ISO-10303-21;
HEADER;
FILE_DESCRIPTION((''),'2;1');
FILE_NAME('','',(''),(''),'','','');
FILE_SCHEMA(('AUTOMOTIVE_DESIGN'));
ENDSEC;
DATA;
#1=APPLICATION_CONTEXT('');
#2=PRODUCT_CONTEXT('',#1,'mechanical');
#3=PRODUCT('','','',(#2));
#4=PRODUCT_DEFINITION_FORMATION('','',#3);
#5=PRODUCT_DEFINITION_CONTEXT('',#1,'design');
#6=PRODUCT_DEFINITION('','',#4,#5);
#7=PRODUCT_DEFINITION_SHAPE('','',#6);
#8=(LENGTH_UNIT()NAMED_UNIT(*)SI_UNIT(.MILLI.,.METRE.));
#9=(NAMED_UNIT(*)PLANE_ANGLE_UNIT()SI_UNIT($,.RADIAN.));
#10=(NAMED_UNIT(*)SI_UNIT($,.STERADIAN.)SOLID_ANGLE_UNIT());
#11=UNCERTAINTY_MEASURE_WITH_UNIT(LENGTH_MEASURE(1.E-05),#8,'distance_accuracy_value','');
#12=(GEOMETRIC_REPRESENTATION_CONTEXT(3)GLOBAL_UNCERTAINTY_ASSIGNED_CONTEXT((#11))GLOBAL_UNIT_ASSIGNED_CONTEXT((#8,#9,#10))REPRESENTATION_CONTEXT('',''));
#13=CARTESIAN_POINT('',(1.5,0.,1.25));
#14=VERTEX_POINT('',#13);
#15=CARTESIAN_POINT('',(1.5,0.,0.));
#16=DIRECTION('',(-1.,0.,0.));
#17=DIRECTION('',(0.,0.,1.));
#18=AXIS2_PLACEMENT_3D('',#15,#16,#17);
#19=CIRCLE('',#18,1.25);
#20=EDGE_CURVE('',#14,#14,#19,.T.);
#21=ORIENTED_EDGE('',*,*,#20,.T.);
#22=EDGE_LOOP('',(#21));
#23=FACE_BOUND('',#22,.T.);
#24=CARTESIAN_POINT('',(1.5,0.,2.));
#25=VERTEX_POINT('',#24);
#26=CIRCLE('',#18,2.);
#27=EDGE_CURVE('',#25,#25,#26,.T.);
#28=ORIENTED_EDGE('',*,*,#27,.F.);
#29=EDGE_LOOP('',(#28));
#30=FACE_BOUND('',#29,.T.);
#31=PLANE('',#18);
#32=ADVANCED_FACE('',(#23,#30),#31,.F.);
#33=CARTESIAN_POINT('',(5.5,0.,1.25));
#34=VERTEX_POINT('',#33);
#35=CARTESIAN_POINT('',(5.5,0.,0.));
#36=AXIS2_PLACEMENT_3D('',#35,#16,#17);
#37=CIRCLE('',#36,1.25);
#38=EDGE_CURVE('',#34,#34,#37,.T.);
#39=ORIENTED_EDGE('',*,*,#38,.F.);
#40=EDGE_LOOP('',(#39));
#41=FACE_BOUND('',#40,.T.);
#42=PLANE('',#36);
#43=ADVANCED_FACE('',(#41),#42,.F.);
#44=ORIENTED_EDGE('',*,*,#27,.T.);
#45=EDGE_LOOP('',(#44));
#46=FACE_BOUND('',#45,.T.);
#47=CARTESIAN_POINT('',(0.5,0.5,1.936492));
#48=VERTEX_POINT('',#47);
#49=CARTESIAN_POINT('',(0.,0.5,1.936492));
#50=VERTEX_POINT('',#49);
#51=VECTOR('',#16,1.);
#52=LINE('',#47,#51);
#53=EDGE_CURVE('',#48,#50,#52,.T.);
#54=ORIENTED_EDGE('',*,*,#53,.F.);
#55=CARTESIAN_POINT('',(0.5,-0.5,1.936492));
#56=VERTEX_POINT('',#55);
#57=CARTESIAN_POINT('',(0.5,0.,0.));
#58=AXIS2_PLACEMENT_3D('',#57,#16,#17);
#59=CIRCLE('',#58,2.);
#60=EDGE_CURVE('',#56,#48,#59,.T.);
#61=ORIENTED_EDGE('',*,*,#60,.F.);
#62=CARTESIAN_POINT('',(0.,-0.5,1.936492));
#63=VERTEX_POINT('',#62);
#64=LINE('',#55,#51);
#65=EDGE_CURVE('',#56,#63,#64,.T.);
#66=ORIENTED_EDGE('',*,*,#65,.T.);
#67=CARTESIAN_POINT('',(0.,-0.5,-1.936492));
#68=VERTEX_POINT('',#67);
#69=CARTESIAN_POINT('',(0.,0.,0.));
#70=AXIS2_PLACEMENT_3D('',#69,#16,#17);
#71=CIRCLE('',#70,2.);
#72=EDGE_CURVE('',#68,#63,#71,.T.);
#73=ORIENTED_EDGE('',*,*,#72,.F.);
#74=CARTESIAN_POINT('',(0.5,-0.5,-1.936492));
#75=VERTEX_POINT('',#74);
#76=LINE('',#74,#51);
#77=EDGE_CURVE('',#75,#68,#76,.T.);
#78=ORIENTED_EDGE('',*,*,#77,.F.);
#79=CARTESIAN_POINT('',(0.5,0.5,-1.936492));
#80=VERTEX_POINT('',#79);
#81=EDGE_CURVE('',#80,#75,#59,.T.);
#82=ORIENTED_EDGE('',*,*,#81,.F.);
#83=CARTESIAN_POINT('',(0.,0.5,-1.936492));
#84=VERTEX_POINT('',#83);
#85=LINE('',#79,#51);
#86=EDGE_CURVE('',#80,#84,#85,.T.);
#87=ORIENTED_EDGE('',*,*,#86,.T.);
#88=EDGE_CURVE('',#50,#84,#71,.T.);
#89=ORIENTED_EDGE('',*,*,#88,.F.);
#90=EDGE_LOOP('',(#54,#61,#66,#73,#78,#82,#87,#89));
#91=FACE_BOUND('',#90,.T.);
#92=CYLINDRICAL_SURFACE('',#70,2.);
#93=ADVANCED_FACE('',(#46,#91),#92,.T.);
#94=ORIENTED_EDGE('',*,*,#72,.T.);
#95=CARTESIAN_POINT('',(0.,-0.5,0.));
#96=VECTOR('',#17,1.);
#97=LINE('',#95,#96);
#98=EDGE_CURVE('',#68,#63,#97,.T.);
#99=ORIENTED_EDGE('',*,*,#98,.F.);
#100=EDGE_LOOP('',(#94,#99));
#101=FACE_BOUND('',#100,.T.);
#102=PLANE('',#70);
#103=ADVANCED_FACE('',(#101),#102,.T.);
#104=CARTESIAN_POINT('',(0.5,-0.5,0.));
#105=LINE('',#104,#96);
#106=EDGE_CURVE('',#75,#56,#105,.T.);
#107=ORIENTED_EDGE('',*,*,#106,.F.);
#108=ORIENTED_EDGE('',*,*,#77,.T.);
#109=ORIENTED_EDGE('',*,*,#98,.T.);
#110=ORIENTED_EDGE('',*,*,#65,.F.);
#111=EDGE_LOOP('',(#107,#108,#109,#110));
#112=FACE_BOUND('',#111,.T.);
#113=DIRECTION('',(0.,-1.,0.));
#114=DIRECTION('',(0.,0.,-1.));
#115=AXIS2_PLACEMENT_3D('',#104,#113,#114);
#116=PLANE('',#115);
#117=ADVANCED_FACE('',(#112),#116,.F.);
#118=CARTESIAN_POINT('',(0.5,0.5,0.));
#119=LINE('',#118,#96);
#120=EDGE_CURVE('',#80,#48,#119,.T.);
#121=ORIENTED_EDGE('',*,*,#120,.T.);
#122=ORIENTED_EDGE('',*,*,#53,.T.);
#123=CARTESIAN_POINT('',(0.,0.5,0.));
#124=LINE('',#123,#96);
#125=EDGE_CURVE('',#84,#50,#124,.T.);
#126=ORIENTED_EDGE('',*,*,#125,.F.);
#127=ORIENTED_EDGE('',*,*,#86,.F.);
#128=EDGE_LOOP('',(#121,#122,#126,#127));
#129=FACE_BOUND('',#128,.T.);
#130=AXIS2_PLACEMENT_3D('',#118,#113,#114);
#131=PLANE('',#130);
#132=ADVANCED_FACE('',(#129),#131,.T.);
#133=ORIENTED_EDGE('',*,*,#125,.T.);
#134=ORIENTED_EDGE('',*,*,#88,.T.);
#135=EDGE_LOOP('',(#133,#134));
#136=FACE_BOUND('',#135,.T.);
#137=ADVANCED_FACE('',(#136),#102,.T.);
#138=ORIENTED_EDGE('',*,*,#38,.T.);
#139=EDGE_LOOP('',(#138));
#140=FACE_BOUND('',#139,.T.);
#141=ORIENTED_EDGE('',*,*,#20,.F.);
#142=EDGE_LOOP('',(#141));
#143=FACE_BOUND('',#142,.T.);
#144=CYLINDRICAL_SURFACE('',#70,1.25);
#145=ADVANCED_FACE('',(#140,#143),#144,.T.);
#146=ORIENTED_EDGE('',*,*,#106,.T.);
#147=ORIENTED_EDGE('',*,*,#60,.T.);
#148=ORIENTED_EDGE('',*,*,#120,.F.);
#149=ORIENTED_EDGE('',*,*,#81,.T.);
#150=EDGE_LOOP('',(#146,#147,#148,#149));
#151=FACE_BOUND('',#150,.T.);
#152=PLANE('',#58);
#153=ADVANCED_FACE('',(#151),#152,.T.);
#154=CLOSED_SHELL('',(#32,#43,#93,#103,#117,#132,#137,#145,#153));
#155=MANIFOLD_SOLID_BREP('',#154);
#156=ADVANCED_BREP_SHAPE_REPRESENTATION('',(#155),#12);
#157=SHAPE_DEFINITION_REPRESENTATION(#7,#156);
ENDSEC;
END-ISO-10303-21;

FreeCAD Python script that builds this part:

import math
import FreeCAD as App
import Part
import Sketcher
from FreeCAD import Vector


def add_polygon(sketch, points):
    """Adds a closed chain of lines whose ends are joined by coincident constraints."""
    first, n = sketch.GeometryCount, len(points)
    for a, b in zip(points, points[1:] + points[:1]):
        sketch.addGeometry(Part.LineSegment(App.Vector(*a, 0), App.Vector(*b, 0)), False)
    for i in range(n):
        sketch.addConstraint(Sketcher.Constraint("Coincident", first + i, 2, first + (i + 1) % n, 1))

doc = App.newDocument("Part")
params = doc.addObject("Spreadsheet::Sheet", "Params")
for row, (alias, value) in enumerate([
    ("sketch1_width", "4 mm"),
    ("sketch1_height", "2 mm"),
    ("sketch1_width2", "5.5 mm"),
    ("sketch1_height2", "1.25 mm"),
    ("revolution_angle", "360 deg"),
    ("sketch2_radius", "2 mm"),
    ("pocket1_length", "0.5 mm"),
], start=1):
    params.set(f"A{row}", alias)
    params.set(f"B{row}", "=" + value)
    params.setAlias(f"B{row}", alias)

body = doc.addObject("PartDesign::Body", "Body")

# Sketch on XZ plane
sketch1 = body.newObject("Sketcher::SketchObject", "Sketch")
sketch1.AttachmentSupport = (doc.getObject("XZ_Plane"), [""])
sketch1.MapMode = "FlatFace"
add_polygon(sketch1, [(0, -2), (0, 0), (5.5, 0), (5.5, -1.2), (1.5, -1.2), (1.5, -2)])  # lines 0-5
sketch1.addConstraint([
    Sketcher.Constraint("Vertical", 0),
    Sketcher.Constraint("Horizontal", 1),
    Sketcher.Constraint("Vertical", 2),
    Sketcher.Constraint("Horizontal", 3),
    Sketcher.Constraint("Vertical", 4),
    Sketcher.Constraint("Horizontal", 5),
    Sketcher.Constraint("Coincident", 0, 2, -1, 1),
    Sketcher.Constraint("DistanceX", 3, 2, 3, 1, 4.0),
    Sketcher.Constraint("DistanceY", 0, 1, 0, 2, 2.0),
    Sketcher.Constraint("DistanceX", 1, 1, 1, 2, 5.5),
    Sketcher.Constraint("DistanceY", 2, 2, 2, 1, 1.25),
])
sketch1.setExpression("Constraints[13]", "Params.sketch1_width")
sketch1.setExpression("Constraints[14]", "Params.sketch1_height")
sketch1.setExpression("Constraints[15]", "Params.sketch1_width2")
sketch1.setExpression("Constraints[16]", "Params.sketch1_height2")
revolution = body.newObject("PartDesign::Revolution", "Revolution")
revolution.Profile = sketch1
revolution.ReferenceAxis = (sketch1, ["H_Axis"])
revolution.setExpression("Angle", "Params.revolution_angle")

# Sketch on YZ plane
sketch2 = body.newObject("Sketcher::SketchObject", "Sketch001")
sketch2.AttachmentSupport = (doc.getObject("YZ_Plane"), [""])
sketch2.MapMode = "FlatFace"
sketch2.addGeometry([
    Part.ArcOfCircle(Part.Circle(Vector(0, 0, 0), Vector(0, 0, 1), 2), math.radians(-104), math.radians(-76)),  # 0
    Part.LineSegment(Vector(-0.5, -1.9, 0), Vector(-0.5, 1.9, 0)),  # 1
    Part.ArcOfCircle(Part.Circle(Vector(0, 0, 0), Vector(0, 0, 1), 2), math.radians(90), math.radians(104.48)),  # 2
    Part.ArcOfCircle(Part.Circle(Vector(0, 0, 0), Vector(0, 0, 1), 2), math.radians(75.52), math.radians(90)),  # 3
    Part.LineSegment(Vector(0.5, 1.9, 0), Vector(0.5, -1.9, 0)),  # 4
], False)
sketch2.addConstraint([
    Sketcher.Constraint("Coincident", 0, 1, 1, 1),
    Sketcher.Constraint("Coincident", 1, 2, 2, 2),
    Sketcher.Constraint("Tangent", 2, 1, 3, 2),
    Sketcher.Constraint("Coincident", 3, 1, 4, 1),
    Sketcher.Constraint("Coincident", 4, 2, 0, 2),
    Sketcher.Constraint("Vertical", 1),
    Sketcher.Constraint("Vertical", 4),
    Sketcher.Constraint("Coincident", 0, 3, -1, 1),
    Sketcher.Constraint("Coincident", 2, 3, -1, 1),
    Sketcher.Constraint("Equal", 0, 2),
    Sketcher.Constraint("Equal", 2, 3),
    Sketcher.Constraint("PointOnObject", 2, 1, -2),
    Sketcher.Constraint("Horizontal", 1, 2, 3, 1),
    Sketcher.Constraint("Radius", 0, 2.0),
    Sketcher.Constraint("DistanceX", 1, 2, 3, 1, 1.0),
])
sketch2.setExpression("Constraints[13]", "Params.sketch2_radius")
pocket1 = body.newObject("PartDesign::Pocket", "Pocket")
pocket1.Profile = sketch2
pocket1.setExpression("Length", "Params.pocket1_length")
pocket1.Reversed = True

doc.recompute()
